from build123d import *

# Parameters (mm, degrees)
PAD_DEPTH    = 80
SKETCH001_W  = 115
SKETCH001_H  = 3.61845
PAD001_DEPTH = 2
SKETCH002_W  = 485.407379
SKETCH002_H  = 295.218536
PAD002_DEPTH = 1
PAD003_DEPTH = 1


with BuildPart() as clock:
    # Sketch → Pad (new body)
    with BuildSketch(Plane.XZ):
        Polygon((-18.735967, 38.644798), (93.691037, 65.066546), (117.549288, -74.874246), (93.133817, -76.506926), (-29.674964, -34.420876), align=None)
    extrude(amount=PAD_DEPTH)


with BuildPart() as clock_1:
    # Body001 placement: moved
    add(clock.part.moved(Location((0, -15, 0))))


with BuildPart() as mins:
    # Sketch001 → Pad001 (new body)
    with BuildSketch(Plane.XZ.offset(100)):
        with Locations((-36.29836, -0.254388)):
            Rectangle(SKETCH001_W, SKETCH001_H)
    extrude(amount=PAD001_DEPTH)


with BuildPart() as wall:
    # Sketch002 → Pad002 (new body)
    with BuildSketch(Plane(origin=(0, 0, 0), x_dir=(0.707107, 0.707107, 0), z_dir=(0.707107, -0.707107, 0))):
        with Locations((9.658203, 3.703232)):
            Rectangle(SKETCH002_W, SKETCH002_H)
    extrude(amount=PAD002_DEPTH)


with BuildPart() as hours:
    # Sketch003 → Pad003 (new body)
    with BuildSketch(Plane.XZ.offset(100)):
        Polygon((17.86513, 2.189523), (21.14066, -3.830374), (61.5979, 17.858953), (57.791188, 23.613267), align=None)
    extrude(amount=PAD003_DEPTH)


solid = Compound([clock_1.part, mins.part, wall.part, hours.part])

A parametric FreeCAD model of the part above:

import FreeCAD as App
import Part
import Sketcher
Q = App.Units.Quantity

doc = App.newDocument("Part")
params = doc.addObject("Spreadsheet::Sheet", "Params")
for row, (alias, value) in enumerate([
    ("sketch1_length", "115.49 mm"),
    ("sketch1_length2", "73.88 mm"),
    ("sketch1_length3", "129.82 mm"),
    ("sketch1_length4", "24.469999 mm"),
    ("sketch1_length5", "141.959999 mm"),
    ("pad1_length", "80 mm"),
    ("sketch2_width", "115 mm"),
    ("pad2_length", "2 mm"),
    ("pad3_length", "1 mm"),
    ("pad4_length", "1 mm"),
], start=1):
    params.set(f"A{row}", alias)
    params.set(f"B{row}", "=" + value)
    params.setAlias(f"B{row}", alias)

body = doc.addObject("PartDesign::Body", "Body")

# Sketch on XZ plane
sketch1 = doc.addObject("Sketcher::SketchObject", "Sketch")
body.addObject(sketch1)
sketch1.AttachmentSupport = (doc.XZ_Plane, [""])
sketch1.MapMode = "FlatFace"
sketch1.addGeometry([
    Part.LineSegment(App.Vector(93.691037, 65.066546, 0), App.Vector(-18.735967, 38.644798, 0)),  # 0
    Part.LineSegment(App.Vector(-18.735967, 38.644798, 0), App.Vector(-29.674964, -34.420876, 0)),  # 1
    Part.LineSegment(App.Vector(-29.674964, -34.420876, 0), App.Vector(93.133817, -76.506926, 0)),  # 2
    Part.LineSegment(App.Vector(93.133817, -76.506926, 0), App.Vector(117.549288, -74.874246, 0)),  # 3
    Part.LineSegment(App.Vector(117.549288, -74.874246, 0), App.Vector(93.691037, 65.066546, 0)),  # 4
], False)
sketch1.addConstraint([
    Sketcher.Constraint("Coincident", 0, 2, 1, 1),
    Sketcher.Constraint("Coincident", 1, 2, 2, 1),
    Sketcher.Constraint("Coincident", 2, 2, 3, 1),
    Sketcher.Constraint("Coincident", 3, 2, 4, 1),
    Sketcher.Constraint("Coincident", 4, 2, 0, 1),
    Sketcher.Constraint("Distance", 0, Q("115.49 mm")),
    Sketcher.Constraint("Distance", 1, Q("73.88 mm")),
    Sketcher.Constraint("Distance", 2, Q("129.82 mm")),
    Sketcher.Constraint("Distance", 3, Q("24.469999 mm")),
    Sketcher.Constraint("Distance", 4, Q("141.959999 mm")),
    Sketcher.Constraint("DistanceX", 1, 2, 4, 2, Q("123.366001 mm")),
    Sketcher.Constraint("DistanceY", -1, 1, 0, 2, Q("38.644798 mm")),
    Sketcher.Constraint("DistanceX", -1, 1, 3, 2, Q("117.549288 mm")),
    Sketcher.Constraint("DistanceX", 1, 2, 2, 2, Q("122.808781 mm")),
    Sketcher.Constraint("DistanceX", 2, 2, 3, 2, Q("24.415471 mm")),
])
sketch1.setExpression("Constraints[5]", "Params.sketch1_length")
sketch1.setExpression("Constraints[6]", "Params.sketch1_length2")
sketch1.setExpression("Constraints[7]", "Params.sketch1_length3")
sketch1.setExpression("Constraints[8]", "Params.sketch1_length4")
sketch1.setExpression("Constraints[9]", "Params.sketch1_length5")
pad1 = doc.addObject("PartDesign::Pad", "Pad")
body.addObject(pad1)
pad1.Profile = sketch1
pad1.setExpression("Length", "Params.pad1_length")
body2 = doc.addObject("PartDesign::Body", "Body001")
doc.recompute()

body.Placement = App.Placement(App.Vector(0, -15, 0), App.Rotation(App.Vector(0, 0, 1), 0))
boolean = doc.addObject("PartDesign::Boolean", "Boolean")
body2.addObject(boolean)
boolean.Type = "Fuse"
boolean.addObjects([body])
body3 = doc.addObject("PartDesign::Body", "Body002")

# Sketch on XZ plane
sketch2 = doc.addObject("Sketcher::SketchObject", "Sketch001")
body3.addObject(sketch2)
sketch2.AttachmentSupport = (doc.getObject("XZ_Plane002"), [""])
sketch2.MapMode = "FlatFace"
sketch2.AttachmentOffset = App.Placement(App.Vector(0, 0, 100), App.Rotation())
sketch2.addGeometry([
    Part.LineSegment(App.Vector(-93.79836, 1.554837, 0), App.Vector(-93.79836, -2.063613, 0)),
    Part.LineSegment(App.Vector(-93.79836, -2.063613, 0), App.Vector(21.20164, -2.063613, 0)),
    Part.LineSegment(App.Vector(21.20164, -2.063613, 0), App.Vector(21.20164, 1.554837, 0)),
    Part.LineSegment(App.Vector(21.20164, 1.554837, 0), App.Vector(-93.79836, 1.554837, 0)),
], False)
sketch2.addConstraint([
    Sketcher.Constraint("Coincident", 0, 2, 1, 1),
    Sketcher.Constraint("Coincident", 1, 2, 2, 1),
    Sketcher.Constraint("Coincident", 2, 2, 3, 1),
    Sketcher.Constraint("Coincident", 3, 2, 0, 1),
    Sketcher.Constraint("Vertical", 0),
    Sketcher.Constraint("Horizontal", 1),
    Sketcher.Constraint("Vertical", 2),
    Sketcher.Constraint("Horizontal", 3),
    Sketcher.Constraint("DistanceX", 1, 1, 1, 2, Q("115 mm")),
    Sketcher.Constraint("DistanceY", 0, 2, 0, 1, Q("3.61845 mm")),
    Sketcher.Constraint("DistanceX", 0, 2, -1, 1, Q("93.79836 mm")),
    Sketcher.Constraint("DistanceY", 0, 2, -1, 1, Q("2.063613 mm")),
])
sketch2.setExpression("Constraints[8]", "Params.sketch2_width")
pad2 = doc.addObject("PartDesign::Pad", "Pad001")
body3.addObject(pad2)
pad2.Profile = sketch2
pad2.setExpression("Length", "Params.pad2_length")
body4 = doc.addObject("PartDesign::Body", "Body003")

# Sketch on an angled plane
sketch3 = doc.addObject("Sketcher::SketchObject", "Sketch002")
body4.addObject(sketch3)
sketch3.Placement = App.Placement(App.Vector(0, 0, 0), App.Rotation(App.Vector(0.707106781, 0.707106781, 0), App.Vector(0, 0, 0.999999999), App.Vector(0.707106781, -0.707106781, 0), "ZXY"))
sketch3.addGeometry([
    Part.LineSegment(App.Vector(-233.045486, 151.3125, 0), App.Vector(-233.045486, -143.906036, 0)),
    Part.LineSegment(App.Vector(-233.045486, -143.906036, 0), App.Vector(252.361892, -143.906036, 0)),
    Part.LineSegment(App.Vector(252.361892, -143.906036, 0), App.Vector(252.361892, 151.3125, 0)),
    Part.LineSegment(App.Vector(252.361892, 151.3125, 0), App.Vector(-233.045486, 151.3125, 0)),
], False)
sketch3.addConstraint([
    Sketcher.Constraint("Coincident", 0, 2, 1, 1),
    Sketcher.Constraint("Coincident", 1, 2, 2, 1),
    Sketcher.Constraint("Coincident", 2, 2, 3, 1),
    Sketcher.Constraint("Coincident", 3, 2, 0, 1),
    Sketcher.Constraint("Vertical", 0),
    Sketcher.Constraint("Horizontal", 1),
    Sketcher.Constraint("Vertical", 2),
    Sketcher.Constraint("Horizontal", 3),
    Sketcher.Constraint("DistanceX", 1, 1, 1, 2, Q("485.407379 mm")),
    Sketcher.Constraint("DistanceY", -1, 1, 2, 2, Q("151.3125 mm")),
    Sketcher.Constraint("DistanceY", 0, 2, 0, 1, Q("295.218536 mm")),
    Sketcher.Constraint("DistanceX", 0, 2, -1, 1, Q("233.045486 mm")),
])
pad3 = doc.addObject("PartDesign::Pad", "Pad002")
body4.addObject(pad3)
pad3.Profile = sketch3
pad3.setExpression("Length", "Params.pad3_length")
body5 = doc.addObject("PartDesign::Body", "Body004")

# Sketch on XZ plane
sketch4 = doc.addObject("Sketcher::SketchObject", "Sketch003")
body5.addObject(sketch4)
sketch4.AttachmentSupport = (doc.getObject("XZ_Plane004"), [""])
sketch4.MapMode = "FlatFace"
sketch4.AttachmentOffset = App.Placement(App.Vector(0, 0, 100), App.Rotation())
sketch4.addGeometry([
    Part.LineSegment(App.Vector(17.86513, 2.189523, 0), App.Vector(21.14066, -3.830374, 0)),
    Part.LineSegment(App.Vector(21.14066, -3.830374, 0), App.Vector(61.5979, 17.858953, 0)),
    Part.LineSegment(App.Vector(61.5979, 17.858953, 0), App.Vector(57.791188, 23.613267, 0)),
    Part.LineSegment(App.Vector(57.791188, 23.613267, 0), App.Vector(17.86513, 2.189523, 0)),
], False)
sketch4.addConstraint([
    Sketcher.Constraint("Coincident", 0, 2, 1, 1),
    Sketcher.Constraint("Coincident", 1, 2, 2, 1),
    Sketcher.Constraint("Coincident", 2, 2, 3, 1),
    Sketcher.Constraint("Coincident", 3, 2, 0, 1),
    Sketcher.Constraint("DistanceX", -1, 1, 1, 2, Q("61.5979 mm")),
    Sketcher.Constraint("Distance", 0, Q("6.853339 mm")),
    Sketcher.Constraint("Distance", 3, Q("45.310781 mm")),
    Sketcher.Constraint("DistanceX", -1, 1, 0, 2, Q("21.14066 mm")),
    Sketcher.Constraint("DistanceX", -1, 1, 3, 2, Q("17.86513 mm")),
    Sketcher.Constraint("DistanceY", 0, 2, 2, 2, Q("27.443641 mm")),
    Sketcher.Constraint("DistanceY", 3, 2, 1, 2, Q("15.66943 mm")),
    Sketcher.Constraint("DistanceY", 0, 2, -1, 1, Q("3.830374 mm")),
])
pad4 = doc.addObject("PartDesign::Pad", "Pad003")
body5.addObject(pad4)
pad4.Profile = sketch4
pad4.setExpression("Length", "Params.pad4_length")

doc.recompute()
